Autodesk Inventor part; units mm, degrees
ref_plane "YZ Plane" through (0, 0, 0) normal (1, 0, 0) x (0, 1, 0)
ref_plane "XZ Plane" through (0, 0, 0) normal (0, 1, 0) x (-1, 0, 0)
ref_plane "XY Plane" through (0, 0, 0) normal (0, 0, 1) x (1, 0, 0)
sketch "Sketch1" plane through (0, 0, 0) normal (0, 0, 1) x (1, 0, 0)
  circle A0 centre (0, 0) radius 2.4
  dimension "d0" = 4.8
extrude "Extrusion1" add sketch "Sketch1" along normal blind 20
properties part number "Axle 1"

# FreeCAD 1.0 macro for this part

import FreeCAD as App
import Part
import Sketcher
from FreeCAD import Vector
Q = App.Units.Quantity

doc = App.newDocument("Part")
params = doc.addObject("Spreadsheet::Sheet", "Params")
for row, (alias, value) in enumerate([
    ("sketch1_diameter", "4.8 mm"),
    ("pad1_length", "20 mm"),
], start=1):
    params.set(f"A{row}", alias)
    params.set(f"B{row}", "=" + value)
    params.setAlias(f"B{row}", alias)

body = doc.addObject("PartDesign::Body", "Body")

# Sketch on XY plane
sketch1 = doc.addObject("Sketcher::SketchObject", "Sketch")
body.addObject(sketch1)
sketch1.AttachmentSupport = (doc.XY_Plane, [""])
sketch1.MapMode = "FlatFace"
sketch1.addGeometry(Part.Circle(Vector(0, 0, 0), Vector(0, 0, 1), 2.4), False)
sketch1.addConstraint(Sketcher.Constraint("Coincident", 0, 3, -1, 1))
sketch1.addConstraint(Sketcher.Constraint("Diameter", 0, Q("4.8 mm")))
sketch1.setExpression("Constraints[1]", "Params.sketch1_diameter")
pad1 = doc.addObject("PartDesign::Pad", "Pad")
body.addObject(pad1)
pad1.Profile = sketch1
pad1.setExpression("Length", "Params.pad1_length")

doc.recompute()
